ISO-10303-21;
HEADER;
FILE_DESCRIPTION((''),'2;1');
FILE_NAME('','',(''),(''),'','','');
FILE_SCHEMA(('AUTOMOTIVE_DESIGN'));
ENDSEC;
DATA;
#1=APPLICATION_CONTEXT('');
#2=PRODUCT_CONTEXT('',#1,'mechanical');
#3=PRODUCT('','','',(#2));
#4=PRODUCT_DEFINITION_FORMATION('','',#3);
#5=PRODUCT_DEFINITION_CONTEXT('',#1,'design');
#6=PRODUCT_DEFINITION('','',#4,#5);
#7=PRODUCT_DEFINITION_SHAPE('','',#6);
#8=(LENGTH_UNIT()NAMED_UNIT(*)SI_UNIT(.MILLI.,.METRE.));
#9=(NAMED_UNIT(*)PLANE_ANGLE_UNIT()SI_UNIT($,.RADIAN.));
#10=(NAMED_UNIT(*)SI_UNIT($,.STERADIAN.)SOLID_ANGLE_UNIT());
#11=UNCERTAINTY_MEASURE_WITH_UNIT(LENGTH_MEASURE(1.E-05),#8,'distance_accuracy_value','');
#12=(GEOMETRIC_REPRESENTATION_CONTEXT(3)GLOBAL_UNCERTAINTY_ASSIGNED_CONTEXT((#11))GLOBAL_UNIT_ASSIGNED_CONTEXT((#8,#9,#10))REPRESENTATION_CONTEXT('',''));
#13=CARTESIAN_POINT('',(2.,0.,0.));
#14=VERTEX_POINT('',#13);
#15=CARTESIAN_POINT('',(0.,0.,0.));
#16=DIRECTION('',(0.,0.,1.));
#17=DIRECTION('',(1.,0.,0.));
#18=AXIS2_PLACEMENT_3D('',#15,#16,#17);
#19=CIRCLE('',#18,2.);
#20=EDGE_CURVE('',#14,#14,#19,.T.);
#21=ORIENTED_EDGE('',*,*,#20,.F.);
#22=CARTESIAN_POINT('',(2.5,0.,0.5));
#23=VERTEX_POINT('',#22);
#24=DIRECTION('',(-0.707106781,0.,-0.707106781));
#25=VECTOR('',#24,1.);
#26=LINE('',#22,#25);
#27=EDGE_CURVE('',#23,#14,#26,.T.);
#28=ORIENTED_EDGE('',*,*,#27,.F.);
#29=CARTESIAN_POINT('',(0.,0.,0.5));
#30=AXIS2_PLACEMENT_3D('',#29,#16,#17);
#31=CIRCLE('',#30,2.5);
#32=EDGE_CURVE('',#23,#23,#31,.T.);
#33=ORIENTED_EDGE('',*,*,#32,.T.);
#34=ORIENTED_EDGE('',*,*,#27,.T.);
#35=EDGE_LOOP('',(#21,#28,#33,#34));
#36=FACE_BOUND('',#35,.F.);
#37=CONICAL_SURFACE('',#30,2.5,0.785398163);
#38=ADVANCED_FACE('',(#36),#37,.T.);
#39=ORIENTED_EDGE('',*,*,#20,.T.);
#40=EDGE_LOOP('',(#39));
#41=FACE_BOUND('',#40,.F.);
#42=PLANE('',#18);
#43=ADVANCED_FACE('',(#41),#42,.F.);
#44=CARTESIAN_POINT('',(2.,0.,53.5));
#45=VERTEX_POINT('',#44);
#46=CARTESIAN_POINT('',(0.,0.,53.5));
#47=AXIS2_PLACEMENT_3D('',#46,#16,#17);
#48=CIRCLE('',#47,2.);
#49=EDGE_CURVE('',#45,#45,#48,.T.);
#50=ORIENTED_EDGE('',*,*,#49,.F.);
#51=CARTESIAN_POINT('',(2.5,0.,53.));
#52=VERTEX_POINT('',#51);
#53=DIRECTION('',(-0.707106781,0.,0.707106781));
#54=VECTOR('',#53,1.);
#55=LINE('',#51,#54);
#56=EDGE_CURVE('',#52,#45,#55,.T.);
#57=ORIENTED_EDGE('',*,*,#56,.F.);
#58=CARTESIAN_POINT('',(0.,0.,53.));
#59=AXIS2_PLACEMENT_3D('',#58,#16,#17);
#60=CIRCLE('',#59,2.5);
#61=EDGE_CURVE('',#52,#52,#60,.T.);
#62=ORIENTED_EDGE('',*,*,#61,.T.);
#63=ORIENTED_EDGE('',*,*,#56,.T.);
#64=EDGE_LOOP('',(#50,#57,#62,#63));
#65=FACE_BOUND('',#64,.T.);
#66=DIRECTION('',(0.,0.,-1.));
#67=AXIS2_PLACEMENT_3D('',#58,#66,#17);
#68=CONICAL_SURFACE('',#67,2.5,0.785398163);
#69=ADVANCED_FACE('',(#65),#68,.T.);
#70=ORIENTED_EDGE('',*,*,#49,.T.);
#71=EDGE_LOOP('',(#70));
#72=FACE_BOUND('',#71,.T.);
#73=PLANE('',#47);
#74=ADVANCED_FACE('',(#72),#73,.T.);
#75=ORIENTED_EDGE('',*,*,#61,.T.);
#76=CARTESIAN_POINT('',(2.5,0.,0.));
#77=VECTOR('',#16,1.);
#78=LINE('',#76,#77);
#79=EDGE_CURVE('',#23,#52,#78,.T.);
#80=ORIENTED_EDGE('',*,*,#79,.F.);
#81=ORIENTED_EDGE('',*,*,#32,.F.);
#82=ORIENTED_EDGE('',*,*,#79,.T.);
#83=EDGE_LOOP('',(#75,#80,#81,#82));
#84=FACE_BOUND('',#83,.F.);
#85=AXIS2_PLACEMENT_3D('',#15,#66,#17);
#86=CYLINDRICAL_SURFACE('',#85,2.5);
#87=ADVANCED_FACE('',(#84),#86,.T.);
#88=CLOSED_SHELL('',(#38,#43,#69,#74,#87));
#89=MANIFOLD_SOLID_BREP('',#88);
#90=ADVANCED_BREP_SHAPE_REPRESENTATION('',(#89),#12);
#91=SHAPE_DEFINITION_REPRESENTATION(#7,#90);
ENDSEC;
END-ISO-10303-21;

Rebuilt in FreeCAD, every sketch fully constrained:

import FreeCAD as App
import Part
import Sketcher


def edges_at(feature, points):
    """Names of the edges that pass closest to the given points."""
    edges = feature.Shape.Edges
    near = lambda p: min(range(len(edges)), key=lambda i: edges[i].distToShape(Part.Vertex(*p))[0])
    return sorted({f"Edge{near(p) + 1}" for p in points})

doc = App.newDocument("Part")
body = doc.addObject("PartDesign::Body", "Body")

sketch1 = body.newObject("Sketcher::SketchObject", "Sketch")
sketch1.AttachmentSupport = (doc.getObject("XY_Plane"), [""])
sketch1.MapMode = "FlatFace"
sketch1.addGeometry(Part.Circle(App.Vector(0, 0, 0), App.Vector(0, 0, 1), 2.5), False)
sketch1.addConstraint([
    Sketcher.Constraint("Coincident", 0, 3, -1, 1),
    Sketcher.Constraint("Diameter", 0, 5.0),
])
pad1 = body.newObject("PartDesign::Pad", "Pad")
pad1.Profile = sketch1
pad1.Length = 53.5
doc.recompute()

chamfer = body.newObject("PartDesign::Chamfer", "Chamfer")
chamfer.Base = (pad1, edges_at(pad1, [(-2.5, 0, 0), (-2.5, 0, 53.5)]))
chamfer.Size = 0.5

doc.recompute()
